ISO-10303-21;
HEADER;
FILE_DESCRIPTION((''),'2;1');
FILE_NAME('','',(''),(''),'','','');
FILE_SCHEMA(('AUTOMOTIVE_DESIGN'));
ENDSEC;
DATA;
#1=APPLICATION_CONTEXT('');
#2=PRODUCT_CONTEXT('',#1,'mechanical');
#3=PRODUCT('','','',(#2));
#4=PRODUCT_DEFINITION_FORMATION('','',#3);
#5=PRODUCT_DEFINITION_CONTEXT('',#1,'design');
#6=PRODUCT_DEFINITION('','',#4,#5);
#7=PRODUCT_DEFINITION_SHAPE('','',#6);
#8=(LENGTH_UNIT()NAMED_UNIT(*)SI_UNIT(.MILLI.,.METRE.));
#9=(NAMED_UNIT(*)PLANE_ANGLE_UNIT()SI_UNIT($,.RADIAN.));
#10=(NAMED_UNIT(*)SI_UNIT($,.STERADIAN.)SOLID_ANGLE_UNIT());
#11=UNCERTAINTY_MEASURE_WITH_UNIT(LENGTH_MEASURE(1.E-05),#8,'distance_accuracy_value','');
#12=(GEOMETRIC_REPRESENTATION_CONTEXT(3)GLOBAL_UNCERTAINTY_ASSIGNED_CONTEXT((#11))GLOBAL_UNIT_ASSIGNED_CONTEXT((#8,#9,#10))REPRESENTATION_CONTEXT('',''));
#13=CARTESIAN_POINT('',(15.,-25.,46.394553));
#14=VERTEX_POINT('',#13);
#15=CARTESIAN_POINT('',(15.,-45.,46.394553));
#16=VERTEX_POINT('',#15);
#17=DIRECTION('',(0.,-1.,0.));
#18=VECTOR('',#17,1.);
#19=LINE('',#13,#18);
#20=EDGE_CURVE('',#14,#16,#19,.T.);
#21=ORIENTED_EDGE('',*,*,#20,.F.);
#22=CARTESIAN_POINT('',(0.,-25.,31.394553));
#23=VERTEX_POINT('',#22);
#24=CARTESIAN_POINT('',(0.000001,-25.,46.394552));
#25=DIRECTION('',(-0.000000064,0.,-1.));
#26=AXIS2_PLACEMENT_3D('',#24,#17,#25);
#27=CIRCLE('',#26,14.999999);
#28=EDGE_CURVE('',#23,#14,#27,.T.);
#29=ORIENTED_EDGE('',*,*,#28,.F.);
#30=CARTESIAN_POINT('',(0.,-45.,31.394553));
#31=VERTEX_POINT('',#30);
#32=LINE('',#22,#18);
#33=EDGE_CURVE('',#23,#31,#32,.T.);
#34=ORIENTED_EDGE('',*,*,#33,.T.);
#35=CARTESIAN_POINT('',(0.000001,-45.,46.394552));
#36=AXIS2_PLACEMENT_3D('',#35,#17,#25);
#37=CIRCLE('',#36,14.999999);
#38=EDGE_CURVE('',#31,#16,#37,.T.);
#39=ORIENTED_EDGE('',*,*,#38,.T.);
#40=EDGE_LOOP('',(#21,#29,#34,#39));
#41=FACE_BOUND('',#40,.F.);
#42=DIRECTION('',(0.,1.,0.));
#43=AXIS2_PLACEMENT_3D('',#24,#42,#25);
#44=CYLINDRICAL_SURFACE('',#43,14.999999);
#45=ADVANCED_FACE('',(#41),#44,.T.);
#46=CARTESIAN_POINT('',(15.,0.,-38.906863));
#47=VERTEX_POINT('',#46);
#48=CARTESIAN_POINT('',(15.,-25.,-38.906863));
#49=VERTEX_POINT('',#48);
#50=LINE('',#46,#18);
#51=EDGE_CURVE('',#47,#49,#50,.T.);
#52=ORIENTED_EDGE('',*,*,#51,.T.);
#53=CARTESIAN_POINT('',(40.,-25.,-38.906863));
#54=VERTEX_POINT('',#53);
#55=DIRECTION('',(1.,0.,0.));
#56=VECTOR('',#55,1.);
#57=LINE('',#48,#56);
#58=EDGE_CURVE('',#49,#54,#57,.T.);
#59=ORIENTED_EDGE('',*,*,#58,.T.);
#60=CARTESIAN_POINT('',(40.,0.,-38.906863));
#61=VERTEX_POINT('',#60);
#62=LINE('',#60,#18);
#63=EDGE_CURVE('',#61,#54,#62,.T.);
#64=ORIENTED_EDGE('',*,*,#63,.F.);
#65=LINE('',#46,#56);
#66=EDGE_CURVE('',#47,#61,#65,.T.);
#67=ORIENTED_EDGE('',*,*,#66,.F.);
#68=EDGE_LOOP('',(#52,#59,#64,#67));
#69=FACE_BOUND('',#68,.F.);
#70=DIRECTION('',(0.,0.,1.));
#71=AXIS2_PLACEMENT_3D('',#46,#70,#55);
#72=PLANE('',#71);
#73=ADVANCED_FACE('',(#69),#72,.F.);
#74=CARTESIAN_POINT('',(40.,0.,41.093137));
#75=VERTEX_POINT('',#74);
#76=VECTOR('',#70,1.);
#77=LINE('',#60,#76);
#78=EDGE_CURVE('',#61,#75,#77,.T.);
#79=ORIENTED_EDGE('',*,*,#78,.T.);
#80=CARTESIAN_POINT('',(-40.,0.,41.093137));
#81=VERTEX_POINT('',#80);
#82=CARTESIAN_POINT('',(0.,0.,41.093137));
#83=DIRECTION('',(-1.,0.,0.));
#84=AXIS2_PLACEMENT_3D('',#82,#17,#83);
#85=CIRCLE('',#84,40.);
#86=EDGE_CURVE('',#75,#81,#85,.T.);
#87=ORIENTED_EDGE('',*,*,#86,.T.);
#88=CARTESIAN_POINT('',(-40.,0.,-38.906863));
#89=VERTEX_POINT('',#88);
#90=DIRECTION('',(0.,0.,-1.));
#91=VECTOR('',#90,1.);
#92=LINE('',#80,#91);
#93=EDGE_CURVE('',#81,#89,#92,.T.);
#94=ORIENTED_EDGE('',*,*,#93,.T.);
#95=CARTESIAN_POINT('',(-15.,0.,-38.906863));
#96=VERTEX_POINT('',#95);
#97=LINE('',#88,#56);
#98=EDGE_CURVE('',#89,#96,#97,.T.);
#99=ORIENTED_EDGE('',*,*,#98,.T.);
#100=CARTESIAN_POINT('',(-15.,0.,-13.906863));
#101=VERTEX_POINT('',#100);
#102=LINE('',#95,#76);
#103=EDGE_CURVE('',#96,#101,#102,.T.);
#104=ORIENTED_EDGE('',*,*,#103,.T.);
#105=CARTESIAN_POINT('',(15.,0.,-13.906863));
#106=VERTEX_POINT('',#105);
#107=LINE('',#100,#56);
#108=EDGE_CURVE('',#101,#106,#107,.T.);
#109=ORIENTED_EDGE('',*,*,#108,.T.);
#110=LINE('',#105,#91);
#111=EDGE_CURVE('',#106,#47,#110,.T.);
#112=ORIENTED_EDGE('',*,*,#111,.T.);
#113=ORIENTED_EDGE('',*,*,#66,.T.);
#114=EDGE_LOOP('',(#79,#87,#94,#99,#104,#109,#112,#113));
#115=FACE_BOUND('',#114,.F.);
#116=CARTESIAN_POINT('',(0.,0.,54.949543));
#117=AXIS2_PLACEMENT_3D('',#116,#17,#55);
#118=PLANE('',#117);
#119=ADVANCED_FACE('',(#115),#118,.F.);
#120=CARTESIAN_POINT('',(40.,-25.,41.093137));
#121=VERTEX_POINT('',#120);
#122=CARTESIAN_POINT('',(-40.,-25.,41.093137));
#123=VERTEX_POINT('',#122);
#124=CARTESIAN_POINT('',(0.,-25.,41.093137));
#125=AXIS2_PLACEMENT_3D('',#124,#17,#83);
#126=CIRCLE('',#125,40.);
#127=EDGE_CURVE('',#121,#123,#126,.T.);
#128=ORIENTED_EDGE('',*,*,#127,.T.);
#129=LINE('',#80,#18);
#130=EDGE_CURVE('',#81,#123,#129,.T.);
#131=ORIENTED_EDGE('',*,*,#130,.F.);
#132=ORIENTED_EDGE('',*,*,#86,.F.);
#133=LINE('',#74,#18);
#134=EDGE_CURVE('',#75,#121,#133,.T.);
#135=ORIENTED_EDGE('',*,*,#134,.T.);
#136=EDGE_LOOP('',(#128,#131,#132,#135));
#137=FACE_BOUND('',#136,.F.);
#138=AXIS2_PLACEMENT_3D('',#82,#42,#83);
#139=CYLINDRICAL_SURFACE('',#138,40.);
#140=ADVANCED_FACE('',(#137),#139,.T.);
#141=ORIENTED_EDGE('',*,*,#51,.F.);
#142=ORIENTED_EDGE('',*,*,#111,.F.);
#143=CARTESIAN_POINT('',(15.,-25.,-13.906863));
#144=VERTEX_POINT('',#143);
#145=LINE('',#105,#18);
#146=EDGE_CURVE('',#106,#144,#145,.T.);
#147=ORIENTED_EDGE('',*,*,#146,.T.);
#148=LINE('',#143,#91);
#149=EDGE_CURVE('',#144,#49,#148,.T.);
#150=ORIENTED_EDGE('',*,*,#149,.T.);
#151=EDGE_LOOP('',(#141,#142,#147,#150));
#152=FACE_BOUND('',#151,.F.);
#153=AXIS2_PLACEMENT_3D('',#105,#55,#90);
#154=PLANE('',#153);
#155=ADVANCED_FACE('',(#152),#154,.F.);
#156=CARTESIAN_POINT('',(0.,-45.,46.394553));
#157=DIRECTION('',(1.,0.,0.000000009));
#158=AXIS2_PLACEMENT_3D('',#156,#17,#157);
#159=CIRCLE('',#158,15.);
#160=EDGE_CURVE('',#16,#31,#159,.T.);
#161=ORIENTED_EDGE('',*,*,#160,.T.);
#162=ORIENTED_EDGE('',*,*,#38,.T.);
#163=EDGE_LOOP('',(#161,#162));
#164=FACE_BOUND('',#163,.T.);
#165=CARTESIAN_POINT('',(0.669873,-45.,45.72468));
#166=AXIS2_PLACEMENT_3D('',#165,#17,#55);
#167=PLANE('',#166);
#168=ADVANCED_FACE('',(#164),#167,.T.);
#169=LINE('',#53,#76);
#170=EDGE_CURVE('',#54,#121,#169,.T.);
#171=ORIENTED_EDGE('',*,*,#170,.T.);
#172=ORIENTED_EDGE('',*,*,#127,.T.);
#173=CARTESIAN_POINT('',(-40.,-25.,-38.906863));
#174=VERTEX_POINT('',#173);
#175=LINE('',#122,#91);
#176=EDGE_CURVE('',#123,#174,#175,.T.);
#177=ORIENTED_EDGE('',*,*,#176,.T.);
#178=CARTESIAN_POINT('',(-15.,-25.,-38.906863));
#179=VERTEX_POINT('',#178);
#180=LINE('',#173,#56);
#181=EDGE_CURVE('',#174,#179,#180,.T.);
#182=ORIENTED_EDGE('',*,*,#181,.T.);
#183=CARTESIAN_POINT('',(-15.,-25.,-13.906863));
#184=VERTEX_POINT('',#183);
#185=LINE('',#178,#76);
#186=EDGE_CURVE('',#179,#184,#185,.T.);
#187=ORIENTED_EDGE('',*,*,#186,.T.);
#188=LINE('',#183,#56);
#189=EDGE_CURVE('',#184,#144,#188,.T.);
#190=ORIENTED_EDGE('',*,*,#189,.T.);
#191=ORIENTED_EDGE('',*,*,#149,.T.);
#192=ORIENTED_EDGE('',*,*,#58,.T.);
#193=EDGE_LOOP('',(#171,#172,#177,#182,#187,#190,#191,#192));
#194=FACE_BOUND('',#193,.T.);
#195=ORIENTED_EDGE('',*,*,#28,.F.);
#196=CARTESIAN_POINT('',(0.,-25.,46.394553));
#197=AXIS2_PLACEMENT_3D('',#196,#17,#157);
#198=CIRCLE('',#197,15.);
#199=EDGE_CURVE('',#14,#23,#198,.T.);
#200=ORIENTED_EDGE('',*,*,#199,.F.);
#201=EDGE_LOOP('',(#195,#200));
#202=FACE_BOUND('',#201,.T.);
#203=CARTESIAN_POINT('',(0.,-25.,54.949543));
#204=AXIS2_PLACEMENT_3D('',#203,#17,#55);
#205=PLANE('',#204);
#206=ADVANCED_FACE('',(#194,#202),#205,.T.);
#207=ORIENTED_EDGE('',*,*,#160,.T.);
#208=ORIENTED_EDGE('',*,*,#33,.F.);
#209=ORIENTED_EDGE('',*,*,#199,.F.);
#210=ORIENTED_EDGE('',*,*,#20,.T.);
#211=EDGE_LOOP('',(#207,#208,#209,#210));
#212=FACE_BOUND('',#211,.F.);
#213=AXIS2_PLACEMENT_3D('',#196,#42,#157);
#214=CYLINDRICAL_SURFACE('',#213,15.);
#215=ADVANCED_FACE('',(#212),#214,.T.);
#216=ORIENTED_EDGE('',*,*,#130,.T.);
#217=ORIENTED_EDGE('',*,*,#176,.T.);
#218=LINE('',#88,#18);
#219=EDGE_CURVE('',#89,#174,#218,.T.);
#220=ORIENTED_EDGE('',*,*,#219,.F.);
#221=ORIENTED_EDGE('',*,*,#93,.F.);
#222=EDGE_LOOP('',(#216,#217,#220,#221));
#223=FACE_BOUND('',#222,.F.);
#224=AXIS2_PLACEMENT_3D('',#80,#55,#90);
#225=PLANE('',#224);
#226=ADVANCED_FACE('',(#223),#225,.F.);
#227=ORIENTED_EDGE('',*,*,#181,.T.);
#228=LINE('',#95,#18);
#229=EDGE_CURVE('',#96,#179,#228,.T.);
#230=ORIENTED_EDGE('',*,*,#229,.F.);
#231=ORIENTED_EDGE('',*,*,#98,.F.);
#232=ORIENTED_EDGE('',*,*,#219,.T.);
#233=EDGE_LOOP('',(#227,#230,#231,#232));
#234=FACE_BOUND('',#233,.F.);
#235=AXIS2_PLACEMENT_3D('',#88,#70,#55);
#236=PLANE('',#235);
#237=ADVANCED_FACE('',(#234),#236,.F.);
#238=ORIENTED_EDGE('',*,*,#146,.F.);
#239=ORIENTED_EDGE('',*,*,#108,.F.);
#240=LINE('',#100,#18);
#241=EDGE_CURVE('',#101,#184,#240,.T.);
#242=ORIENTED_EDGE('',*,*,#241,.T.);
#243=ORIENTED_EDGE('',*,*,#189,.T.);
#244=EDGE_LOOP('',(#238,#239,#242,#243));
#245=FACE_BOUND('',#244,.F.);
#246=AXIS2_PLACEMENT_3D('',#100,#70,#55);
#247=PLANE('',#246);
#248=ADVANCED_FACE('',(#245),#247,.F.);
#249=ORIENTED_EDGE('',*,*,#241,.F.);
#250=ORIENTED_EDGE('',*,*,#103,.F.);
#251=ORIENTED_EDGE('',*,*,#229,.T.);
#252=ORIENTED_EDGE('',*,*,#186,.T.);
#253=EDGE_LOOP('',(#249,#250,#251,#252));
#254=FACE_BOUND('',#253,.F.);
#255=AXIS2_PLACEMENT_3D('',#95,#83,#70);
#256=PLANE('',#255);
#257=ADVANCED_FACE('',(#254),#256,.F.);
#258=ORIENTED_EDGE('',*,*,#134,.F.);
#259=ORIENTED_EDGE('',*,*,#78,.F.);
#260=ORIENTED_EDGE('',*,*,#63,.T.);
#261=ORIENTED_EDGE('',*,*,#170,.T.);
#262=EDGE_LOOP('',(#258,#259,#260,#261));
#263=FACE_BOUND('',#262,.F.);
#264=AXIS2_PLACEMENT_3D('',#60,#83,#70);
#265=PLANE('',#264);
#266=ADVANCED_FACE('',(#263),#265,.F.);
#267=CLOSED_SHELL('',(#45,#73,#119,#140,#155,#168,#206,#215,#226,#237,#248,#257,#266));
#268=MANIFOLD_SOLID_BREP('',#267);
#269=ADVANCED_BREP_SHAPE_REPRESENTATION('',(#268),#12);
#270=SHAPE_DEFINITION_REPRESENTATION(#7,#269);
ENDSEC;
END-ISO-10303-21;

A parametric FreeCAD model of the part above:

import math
import FreeCAD as App
import Part
import Sketcher

V = App.Vector

doc = App.newDocument("Part")
params = doc.addObject("Spreadsheet::Sheet", "Params")
for row, (alias, value) in enumerate([
    ("sketch1_radius", "40 mm"),
    ("sketch1_width", "25 mm"),
    ("sketch1_height", "80 mm"),
    ("pad1_length", "25 mm"),
    ("sketch2_radius", "14.999999 mm"),
    ("pad2_length", "20 mm"),
], start=1):
    params.set(f"A{row}", alias)
    params.set(f"B{row}", "=" + value)
    params.setAlias(f"B{row}", alias)

body = doc.addObject("PartDesign::Body", "Body")

sketch1 = body.newObject("Sketcher::SketchObject", "Sketch")
sketch1.AttachmentSupport = (doc.getObject("XZ_Plane"), [""])
sketch1.MapMode = "FlatFace"
sketch1.addGeometry([
    Part.ArcOfCircle(Part.Circle(V(0, 41, 0), V(0, 0, 1), 40), math.radians(0), math.radians(180)),
    Part.LineSegment(V(-40, 41, 0), V(-40, -39, 0)),
    Part.LineSegment(V(-40, -39, 0), V(-15, -39, 0)),
    Part.LineSegment(V(-15, -39, 0), V(-15, -14, 0)),
    Part.LineSegment(V(-15, -14, 0), V(15, -14, 0)),
    Part.LineSegment(V(15, -14, 0), V(15, -39, 0)),
    Part.LineSegment(V(15, -39, 0), V(40, -39, 0)),
    Part.LineSegment(V(40, -39, 0), V(40, 41, 0)),
], False)
sketch1.addConstraint([
    Sketcher.Constraint("Tangent", 0, 2, 1, 1),
    Sketcher.Constraint("Coincident", 1, 2, 2, 1),
    Sketcher.Constraint("Coincident", 2, 2, 3, 1),
    Sketcher.Constraint("Coincident", 3, 2, 4, 1),
    Sketcher.Constraint("Coincident", 4, 2, 5, 1),
    Sketcher.Constraint("Coincident", 5, 2, 6, 1),
    Sketcher.Constraint("Coincident", 6, 2, 7, 1),
    Sketcher.Constraint("Tangent", 7, 2, 0, 1),
    Sketcher.Constraint("Vertical", 1),
    Sketcher.Constraint("Horizontal", 2),
    Sketcher.Constraint("Vertical", 3),
    Sketcher.Constraint("Horizontal", 4),
    Sketcher.Constraint("Vertical", 5),
    Sketcher.Constraint("Horizontal", 6),
    Sketcher.Constraint("Vertical", 7),
    Sketcher.Constraint("Symmetric", 2, 2, 5, 2, -2),
    Sketcher.Constraint("PointOnObject", 0, 3, -2),
    Sketcher.Constraint("Equal", 6, 3),
    Sketcher.Constraint("Radius", 0, 40.0),
    Sketcher.Constraint("DistanceX", 2, 1, 2, 2, 25.0),
    Sketcher.Constraint("DistanceY", 1, 2, 1, 1, 80.0),
    Sketcher.Constraint("DistanceY", -1, 1, 0, 3, 41.093137),
])
sketch1.setExpression("Constraints[18]", "Params.sketch1_radius")
sketch1.setExpression("Constraints[19]", "Params.sketch1_width")
sketch1.setExpression("Constraints[20]", "Params.sketch1_height")
pad1 = body.newObject("PartDesign::Pad", "Pad")
pad1.Profile = sketch1
pad1.setExpression("Length", "Params.pad1_length")

sketch2 = body.newObject("Sketcher::SketchObject", "Sketch001")
sketch2.AttachmentSupport = (doc.getObject("XZ_Plane"), [""])
sketch2.MapMode = "FlatFace"
sketch2.AttachmentOffset = App.Placement(V(0, 0, 25), App.Rotation())
sketch2.addGeometry([
    Part.ArcOfCircle(Part.Circle(V(0, 46, 0), V(0, 0, 1), 15), math.radians(-90), math.radians(0)),
    Part.ArcOfCircle(Part.Circle(V(0, 46, 0), V(0, 0, 1), 15), math.radians(0), math.radians(270)),
], False)
sketch2.addConstraint([
    Sketcher.Constraint("Tangent", 0, 1, 1, 2),
    Sketcher.Constraint("Coincident", 1, 1, 0, 2),
    Sketcher.Constraint("PointOnObject", 0, 3, -2),
    Sketcher.Constraint("PointOnObject", 0, 1, -2),
    Sketcher.Constraint("Horizontal", 0, 3, 1, 1),
    Sketcher.Constraint("Radius", 0, 14.999999),
    Sketcher.Constraint("DistanceY", -1, 1, 0, 3, 46.394552),
])
sketch2.setExpression("Constraints[5]", "Params.sketch2_radius")
pad2 = body.newObject("PartDesign::Pad", "Pad001")
pad2.Profile = sketch2
pad2.setExpression("Length", "Params.pad2_length")

doc.recompute()
